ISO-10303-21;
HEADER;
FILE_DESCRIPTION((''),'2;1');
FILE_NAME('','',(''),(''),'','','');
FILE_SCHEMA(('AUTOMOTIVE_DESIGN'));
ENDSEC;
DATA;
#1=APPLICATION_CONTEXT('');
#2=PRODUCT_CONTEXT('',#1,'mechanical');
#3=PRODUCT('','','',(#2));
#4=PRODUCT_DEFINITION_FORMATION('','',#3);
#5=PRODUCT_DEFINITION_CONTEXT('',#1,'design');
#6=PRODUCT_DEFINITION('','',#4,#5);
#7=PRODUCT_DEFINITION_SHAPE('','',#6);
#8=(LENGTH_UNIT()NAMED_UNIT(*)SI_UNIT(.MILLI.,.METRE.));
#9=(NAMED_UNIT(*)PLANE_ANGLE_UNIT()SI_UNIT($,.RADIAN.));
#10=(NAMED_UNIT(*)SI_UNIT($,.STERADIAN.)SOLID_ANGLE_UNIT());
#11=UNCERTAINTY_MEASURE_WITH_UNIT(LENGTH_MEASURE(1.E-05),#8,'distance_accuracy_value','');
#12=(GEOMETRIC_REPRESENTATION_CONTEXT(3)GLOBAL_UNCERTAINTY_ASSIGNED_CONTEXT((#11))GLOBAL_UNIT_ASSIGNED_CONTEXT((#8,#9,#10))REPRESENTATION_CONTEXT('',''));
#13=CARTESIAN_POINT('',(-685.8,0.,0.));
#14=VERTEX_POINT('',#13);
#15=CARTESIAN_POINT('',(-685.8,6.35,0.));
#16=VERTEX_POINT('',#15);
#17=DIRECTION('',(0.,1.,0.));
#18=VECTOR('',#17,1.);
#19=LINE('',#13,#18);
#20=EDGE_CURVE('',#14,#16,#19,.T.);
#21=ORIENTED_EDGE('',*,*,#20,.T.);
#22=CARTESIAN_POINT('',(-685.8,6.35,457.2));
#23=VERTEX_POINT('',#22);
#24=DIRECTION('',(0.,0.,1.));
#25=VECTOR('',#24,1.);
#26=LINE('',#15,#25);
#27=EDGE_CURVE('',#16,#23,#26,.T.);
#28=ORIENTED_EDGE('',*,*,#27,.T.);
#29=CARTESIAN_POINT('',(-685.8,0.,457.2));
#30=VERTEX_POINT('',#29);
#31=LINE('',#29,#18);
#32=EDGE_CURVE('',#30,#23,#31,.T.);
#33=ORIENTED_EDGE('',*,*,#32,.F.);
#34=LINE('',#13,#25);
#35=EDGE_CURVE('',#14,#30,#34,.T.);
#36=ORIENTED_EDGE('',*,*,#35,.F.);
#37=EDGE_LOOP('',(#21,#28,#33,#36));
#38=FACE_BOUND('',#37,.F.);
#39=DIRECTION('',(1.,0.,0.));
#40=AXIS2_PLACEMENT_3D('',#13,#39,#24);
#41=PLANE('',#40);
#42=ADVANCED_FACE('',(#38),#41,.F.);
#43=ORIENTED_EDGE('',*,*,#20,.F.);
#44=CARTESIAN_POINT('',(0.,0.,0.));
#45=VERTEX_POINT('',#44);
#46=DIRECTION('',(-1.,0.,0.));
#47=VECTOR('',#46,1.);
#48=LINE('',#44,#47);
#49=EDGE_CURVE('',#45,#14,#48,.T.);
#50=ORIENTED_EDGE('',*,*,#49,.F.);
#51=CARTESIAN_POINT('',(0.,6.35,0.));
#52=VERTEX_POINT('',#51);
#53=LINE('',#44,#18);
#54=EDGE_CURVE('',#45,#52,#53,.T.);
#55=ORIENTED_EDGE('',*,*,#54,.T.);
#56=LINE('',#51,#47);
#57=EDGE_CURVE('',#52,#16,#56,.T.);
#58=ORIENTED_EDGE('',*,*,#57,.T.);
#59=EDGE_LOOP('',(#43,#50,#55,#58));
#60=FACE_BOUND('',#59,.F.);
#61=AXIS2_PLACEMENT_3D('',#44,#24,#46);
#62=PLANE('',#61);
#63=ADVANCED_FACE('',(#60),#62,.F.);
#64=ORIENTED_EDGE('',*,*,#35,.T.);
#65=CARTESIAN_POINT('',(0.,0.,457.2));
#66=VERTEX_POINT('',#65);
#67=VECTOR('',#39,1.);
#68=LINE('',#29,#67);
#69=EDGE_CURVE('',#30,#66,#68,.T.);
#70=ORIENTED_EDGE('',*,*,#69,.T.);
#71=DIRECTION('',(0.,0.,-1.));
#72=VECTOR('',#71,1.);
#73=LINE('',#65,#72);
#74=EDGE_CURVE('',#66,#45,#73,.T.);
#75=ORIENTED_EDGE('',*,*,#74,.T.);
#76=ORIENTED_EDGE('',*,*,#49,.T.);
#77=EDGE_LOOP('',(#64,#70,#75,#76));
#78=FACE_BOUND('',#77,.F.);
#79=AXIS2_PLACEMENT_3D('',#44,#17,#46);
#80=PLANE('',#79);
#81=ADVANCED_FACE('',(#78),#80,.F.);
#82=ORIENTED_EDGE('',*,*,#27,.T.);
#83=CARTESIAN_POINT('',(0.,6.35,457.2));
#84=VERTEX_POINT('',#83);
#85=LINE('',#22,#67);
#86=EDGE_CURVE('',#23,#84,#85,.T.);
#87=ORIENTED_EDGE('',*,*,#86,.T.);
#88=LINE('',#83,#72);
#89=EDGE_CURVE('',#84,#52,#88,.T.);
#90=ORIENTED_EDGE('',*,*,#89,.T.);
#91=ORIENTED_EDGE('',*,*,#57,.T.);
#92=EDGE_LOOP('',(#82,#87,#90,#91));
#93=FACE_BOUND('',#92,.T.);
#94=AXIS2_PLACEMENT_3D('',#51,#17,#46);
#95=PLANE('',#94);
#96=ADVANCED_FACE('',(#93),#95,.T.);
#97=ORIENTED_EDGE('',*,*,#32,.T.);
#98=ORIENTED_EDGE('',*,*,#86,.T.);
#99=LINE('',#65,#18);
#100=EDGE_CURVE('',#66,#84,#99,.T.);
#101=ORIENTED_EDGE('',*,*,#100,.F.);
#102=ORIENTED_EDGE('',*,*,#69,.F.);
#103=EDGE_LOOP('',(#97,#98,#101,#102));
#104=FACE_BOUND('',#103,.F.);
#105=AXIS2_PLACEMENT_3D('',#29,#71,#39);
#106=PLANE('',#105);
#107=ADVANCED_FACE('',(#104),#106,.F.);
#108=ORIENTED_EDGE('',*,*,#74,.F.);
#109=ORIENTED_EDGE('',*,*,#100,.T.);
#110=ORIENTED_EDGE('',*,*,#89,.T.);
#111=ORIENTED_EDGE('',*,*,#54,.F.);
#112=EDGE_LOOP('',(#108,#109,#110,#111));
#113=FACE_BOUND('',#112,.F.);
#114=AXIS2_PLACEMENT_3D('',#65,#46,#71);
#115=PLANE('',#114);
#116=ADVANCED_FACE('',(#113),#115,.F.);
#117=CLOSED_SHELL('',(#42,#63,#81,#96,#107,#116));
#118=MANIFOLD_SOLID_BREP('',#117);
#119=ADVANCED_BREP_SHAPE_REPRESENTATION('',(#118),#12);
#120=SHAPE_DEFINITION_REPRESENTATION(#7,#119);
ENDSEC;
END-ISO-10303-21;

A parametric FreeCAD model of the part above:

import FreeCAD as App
import Part
import Sketcher
Q = App.Units.Quantity

doc = App.newDocument("Part")
body = doc.addObject("PartDesign::Body", "Body")

# Sketch on XZ plane
sketch1 = doc.addObject("Sketcher::SketchObject", "Sketch")
body.addObject(sketch1)
sketch1.AttachmentSupport = (doc.XZ_Plane, [""])
sketch1.MapMode = "FlatFace"
sketch1.addGeometry([
    Part.LineSegment(App.Vector(0, 457, 0), App.Vector(0, 0, 0)),
    Part.LineSegment(App.Vector(0, 0, 0), App.Vector(-686, 0, 0)),
    Part.LineSegment(App.Vector(-686, 0, 0), App.Vector(-686, 457, 0)),
    Part.LineSegment(App.Vector(-686, 457, 0), App.Vector(0, 457, 0)),
], False)
sketch1.addConstraint([
    Sketcher.Constraint("Coincident", 0, 2, 1, 1),
    Sketcher.Constraint("Coincident", 1, 2, 2, 1),
    Sketcher.Constraint("Coincident", 2, 2, 3, 1),
    Sketcher.Constraint("Coincident", 3, 2, 0, 1),
    Sketcher.Constraint("Vertical", 0),
    Sketcher.Constraint("Horizontal", 1),
    Sketcher.Constraint("Vertical", 2),
    Sketcher.Constraint("Horizontal", 3),
    Sketcher.Constraint("Coincident", 0, 2, -1, 1),
    Sketcher.Constraint("DistanceX", 1, 2, 1, 1, Q("27 in")),
    Sketcher.Constraint("DistanceY", 0, 2, 0, 1, Q("18 in")),
])
pad1 = doc.addObject("PartDesign::Pad", "Pad")
body.addObject(pad1)
pad1.Profile = sketch1
pad1.Length = Q("0.25 in")
pad1.Reversed = True

doc.recompute()
